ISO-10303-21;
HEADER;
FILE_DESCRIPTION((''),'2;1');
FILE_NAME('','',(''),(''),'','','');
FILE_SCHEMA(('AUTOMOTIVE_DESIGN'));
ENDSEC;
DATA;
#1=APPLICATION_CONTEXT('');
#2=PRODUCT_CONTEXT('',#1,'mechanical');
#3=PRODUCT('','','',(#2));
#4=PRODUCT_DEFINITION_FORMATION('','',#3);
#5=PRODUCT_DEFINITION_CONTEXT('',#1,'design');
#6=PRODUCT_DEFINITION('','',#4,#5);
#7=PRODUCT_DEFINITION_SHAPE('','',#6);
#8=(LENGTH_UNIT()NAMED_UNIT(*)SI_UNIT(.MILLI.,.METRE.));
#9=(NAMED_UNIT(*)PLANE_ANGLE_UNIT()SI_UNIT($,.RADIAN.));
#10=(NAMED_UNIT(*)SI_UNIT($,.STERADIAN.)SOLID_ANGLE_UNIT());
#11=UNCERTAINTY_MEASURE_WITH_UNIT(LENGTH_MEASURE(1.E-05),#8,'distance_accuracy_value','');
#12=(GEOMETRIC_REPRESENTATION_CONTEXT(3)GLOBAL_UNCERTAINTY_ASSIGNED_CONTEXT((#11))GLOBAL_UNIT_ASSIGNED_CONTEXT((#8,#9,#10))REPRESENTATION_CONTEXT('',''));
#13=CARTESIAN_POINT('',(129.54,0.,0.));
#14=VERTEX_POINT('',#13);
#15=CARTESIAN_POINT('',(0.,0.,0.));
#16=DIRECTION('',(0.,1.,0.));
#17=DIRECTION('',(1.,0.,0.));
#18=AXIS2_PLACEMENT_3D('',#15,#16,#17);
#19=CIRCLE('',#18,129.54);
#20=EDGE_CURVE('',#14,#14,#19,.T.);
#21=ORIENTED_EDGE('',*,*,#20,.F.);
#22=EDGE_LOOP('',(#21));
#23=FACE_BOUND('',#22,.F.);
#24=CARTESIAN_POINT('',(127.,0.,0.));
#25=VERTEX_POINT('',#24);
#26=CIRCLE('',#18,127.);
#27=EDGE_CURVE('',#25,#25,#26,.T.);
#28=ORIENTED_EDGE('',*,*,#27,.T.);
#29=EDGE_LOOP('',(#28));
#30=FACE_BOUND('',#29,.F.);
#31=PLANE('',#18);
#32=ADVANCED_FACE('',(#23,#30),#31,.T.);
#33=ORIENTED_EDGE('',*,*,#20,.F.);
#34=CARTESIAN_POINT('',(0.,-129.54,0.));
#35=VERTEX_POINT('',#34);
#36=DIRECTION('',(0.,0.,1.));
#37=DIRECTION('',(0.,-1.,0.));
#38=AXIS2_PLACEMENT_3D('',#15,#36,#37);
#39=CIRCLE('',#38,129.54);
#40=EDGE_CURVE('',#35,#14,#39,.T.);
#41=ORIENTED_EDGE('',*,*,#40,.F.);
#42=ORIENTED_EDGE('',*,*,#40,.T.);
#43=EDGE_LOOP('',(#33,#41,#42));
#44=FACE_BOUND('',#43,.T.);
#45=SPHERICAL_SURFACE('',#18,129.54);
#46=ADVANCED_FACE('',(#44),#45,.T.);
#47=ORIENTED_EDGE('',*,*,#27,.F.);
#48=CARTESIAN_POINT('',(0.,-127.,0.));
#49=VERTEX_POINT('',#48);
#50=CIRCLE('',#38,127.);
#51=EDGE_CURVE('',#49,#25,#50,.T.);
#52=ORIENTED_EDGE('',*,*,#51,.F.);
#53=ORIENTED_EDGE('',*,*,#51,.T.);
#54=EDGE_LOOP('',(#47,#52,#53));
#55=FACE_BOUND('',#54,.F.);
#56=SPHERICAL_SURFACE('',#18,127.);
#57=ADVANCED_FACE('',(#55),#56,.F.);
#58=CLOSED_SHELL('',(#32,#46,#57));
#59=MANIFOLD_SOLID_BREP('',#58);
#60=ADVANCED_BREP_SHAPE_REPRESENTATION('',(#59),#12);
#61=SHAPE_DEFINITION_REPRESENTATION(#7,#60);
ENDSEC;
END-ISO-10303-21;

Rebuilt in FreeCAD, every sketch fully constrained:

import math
import FreeCAD as App
import Part
import Sketcher
from FreeCAD import Vector
Q = App.Units.Quantity

doc = App.newDocument("Part")
body = doc.addObject("PartDesign::Body", "Body")

# Sketch on XY plane
sketch1 = body.newObject("Sketcher::SketchObject", "Sketch")
sketch1.AttachmentSupport = (doc.getObject("XY_Plane"), [""])
sketch1.MapMode = "FlatFace"
sketch1.addGeometry([
    Part.LineSegment(Vector(0, -127, 0), Vector(0, -129.54, 0)),
    Part.ArcOfCircle(Part.Circle(Vector(0, 0, 0), Vector(0, 0, 1), 129.54), math.radians(-90), math.radians(0)),
    Part.LineSegment(Vector(129.54, 0, 0), Vector(127, 0, 0)),
    Part.ArcOfCircle(Part.Circle(Vector(0, 0, 0), Vector(0, 0, 1), 127), math.radians(-90), math.radians(0)),
], False)
sketch1.addConstraint([
    Sketcher.Constraint("Coincident", 0, 2, 1, 1),
    Sketcher.Constraint("Coincident", 1, 2, 2, 1),
    Sketcher.Constraint("Coincident", 2, 2, 3, 2),
    Sketcher.Constraint("Coincident", 3, 1, 0, 1),
    Sketcher.Constraint("Vertical", 0),
    Sketcher.Constraint("Horizontal", 2),
    Sketcher.Constraint("Coincident", 1, 3, -1, 1),
    Sketcher.Constraint("Coincident", 3, 3, -1, 1),
    Sketcher.Constraint("PointOnObject", 0, 2, -2),
    Sketcher.Constraint("PointOnObject", 1, 2, -1),
    Sketcher.Constraint("Radius", 3, Q("5 in")),
    Sketcher.Constraint("Radius", 1, Q("5.1 in")),
])
revolution = body.newObject("PartDesign::Revolution", "Revolution")
revolution.Profile = sketch1
revolution.ReferenceAxis = (sketch1, ["V_Axis"])
revolution.Angle = 360

doc.recompute()
